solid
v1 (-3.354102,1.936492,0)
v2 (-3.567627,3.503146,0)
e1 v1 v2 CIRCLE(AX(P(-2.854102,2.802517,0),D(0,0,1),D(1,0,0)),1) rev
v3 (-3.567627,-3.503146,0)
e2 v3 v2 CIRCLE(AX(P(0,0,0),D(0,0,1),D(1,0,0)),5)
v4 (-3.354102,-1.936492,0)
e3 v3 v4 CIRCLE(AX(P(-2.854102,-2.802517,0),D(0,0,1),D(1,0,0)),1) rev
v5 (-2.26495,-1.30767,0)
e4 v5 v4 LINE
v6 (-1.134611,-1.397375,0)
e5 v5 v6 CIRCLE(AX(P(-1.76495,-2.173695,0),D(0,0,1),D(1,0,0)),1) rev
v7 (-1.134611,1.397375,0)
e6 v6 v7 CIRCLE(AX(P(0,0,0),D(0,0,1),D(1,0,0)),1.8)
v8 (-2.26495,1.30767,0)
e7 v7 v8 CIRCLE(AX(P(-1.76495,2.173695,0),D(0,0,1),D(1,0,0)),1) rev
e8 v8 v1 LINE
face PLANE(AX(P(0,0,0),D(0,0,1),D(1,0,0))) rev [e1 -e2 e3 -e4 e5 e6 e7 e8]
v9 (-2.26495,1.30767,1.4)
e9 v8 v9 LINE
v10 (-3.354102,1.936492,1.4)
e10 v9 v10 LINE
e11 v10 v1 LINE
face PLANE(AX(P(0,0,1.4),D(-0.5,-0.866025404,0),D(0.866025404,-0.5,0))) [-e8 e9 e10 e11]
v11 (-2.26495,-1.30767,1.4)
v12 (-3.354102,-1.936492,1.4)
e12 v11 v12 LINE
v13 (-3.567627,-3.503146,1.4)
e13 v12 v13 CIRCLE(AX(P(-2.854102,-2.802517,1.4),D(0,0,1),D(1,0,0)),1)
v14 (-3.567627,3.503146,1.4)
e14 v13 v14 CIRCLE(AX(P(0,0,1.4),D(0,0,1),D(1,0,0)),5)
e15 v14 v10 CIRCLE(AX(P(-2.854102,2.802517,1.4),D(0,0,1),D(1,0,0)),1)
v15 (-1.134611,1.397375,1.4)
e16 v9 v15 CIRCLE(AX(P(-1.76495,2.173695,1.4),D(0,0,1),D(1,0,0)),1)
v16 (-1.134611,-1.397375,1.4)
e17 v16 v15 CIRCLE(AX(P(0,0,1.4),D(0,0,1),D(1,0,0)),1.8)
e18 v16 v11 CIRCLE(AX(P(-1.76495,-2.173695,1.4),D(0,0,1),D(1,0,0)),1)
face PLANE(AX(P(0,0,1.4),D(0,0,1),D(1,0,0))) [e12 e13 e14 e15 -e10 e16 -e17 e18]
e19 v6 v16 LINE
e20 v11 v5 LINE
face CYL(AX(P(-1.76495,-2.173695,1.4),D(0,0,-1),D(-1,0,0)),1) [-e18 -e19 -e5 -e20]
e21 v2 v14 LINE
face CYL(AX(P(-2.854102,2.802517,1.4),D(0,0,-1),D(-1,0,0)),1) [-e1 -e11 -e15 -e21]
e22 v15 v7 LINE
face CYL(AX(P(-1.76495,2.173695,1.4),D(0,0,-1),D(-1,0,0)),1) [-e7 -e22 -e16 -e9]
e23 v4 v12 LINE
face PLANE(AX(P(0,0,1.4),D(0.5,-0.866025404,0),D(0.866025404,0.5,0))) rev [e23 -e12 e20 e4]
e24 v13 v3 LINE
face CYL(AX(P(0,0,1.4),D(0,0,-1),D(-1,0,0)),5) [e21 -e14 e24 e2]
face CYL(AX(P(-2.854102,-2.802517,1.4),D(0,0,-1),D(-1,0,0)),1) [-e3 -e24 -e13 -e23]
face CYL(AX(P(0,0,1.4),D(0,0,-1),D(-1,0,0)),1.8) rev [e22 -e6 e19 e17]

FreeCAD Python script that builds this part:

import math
import FreeCAD as App
import Part
import Sketcher
Q = App.Units.Quantity


def edges_at(feature, points):
    """Names of the edges that pass closest to the given points."""
    edges = feature.Shape.Edges
    near = lambda p: min(range(len(edges)), key=lambda i: edges[i].distToShape(Part.Vertex(*p))[0])
    return sorted({f"Edge{near(p) + 1}" for p in points})

doc = App.newDocument("Part")
body = doc.addObject("PartDesign::Body", "Body")

# Sketch on XY plane
sketch1 = body.newObject("Sketcher::SketchObject", "Sketch")
sketch1.AttachmentSupport = (doc.getObject("XY_Plane"), [""])
sketch1.MapMode = "FlatFace"
sketch1.addGeometry(Part.ArcOfCircle(Part.Circle(App.Vector(0, 0, 0), App.Vector(0, 0, 1), 1.8), math.radians(-150), math.radians(90)), False)
sketch1.addGeometry(Part.LineSegment(App.Vector(-1.558846, -0.9, 0), App.Vector(-4.330127, -2.5, 0)), False)
sketch1.addGeometry(Part.ArcOfCircle(Part.Circle(App.Vector(0, 0, 0), App.Vector(0, 0, 1), 5), math.radians(-150), math.radians(90)), False)
sketch1.addGeometry(Part.ArcOfCircle(Part.Circle(App.Vector(0, 0, 0), App.Vector(0, 0, 1), 5), math.radians(90), math.radians(150)), False)
sketch1.addGeometry(Part.LineSegment(App.Vector(-4.330127, 2.5, 0), App.Vector(-1.558846, 0.9, 0)), False)
sketch1.addGeometry(Part.ArcOfCircle(Part.Circle(App.Vector(0, 0, 0), App.Vector(0, 0, 1), 1.8), math.radians(90), math.radians(150)), False)
sketch1.addConstraint(Sketcher.Constraint("Coincident", 0, 1, 1, 1))
sketch1.addConstraint(Sketcher.Constraint("Coincident", 1, 2, 2, 1))
sketch1.addConstraint(Sketcher.Constraint("Tangent", 2, 2, 3, 1))
sketch1.addConstraint(Sketcher.Constraint("Coincident", 3, 2, 4, 1))
sketch1.addConstraint(Sketcher.Constraint("Coincident", 4, 2, 5, 2))
sketch1.addConstraint(Sketcher.Constraint("Tangent", 5, 1, 0, 2))
sketch1.addConstraint(Sketcher.Constraint("Coincident", 0, 3, -1, 1))
sketch1.addConstraint(Sketcher.Constraint("Coincident", 2, 3, -1, 1))
sketch1.addConstraint(Sketcher.Constraint("Equal", 2, 3))
sketch1.addConstraint(Sketcher.Constraint("Equal", 0, 5))
sketch1.addConstraint(Sketcher.Constraint("PointOnObject", 2, 2, -2))
sketch1.addConstraint(Sketcher.Constraint("PointOnObject", 5, 1, -2))
sketch1.addConstraint(Sketcher.Constraint("Vertical", 1, 2, 3, 2))
sketch1.addConstraint(Sketcher.Constraint("Vertical", 0, 1, 4, 2))
sketch1.addConstraint(Sketcher.Constraint("Radius", 2, Q("5 mm")))
sketch1.addConstraint(Sketcher.Constraint("Radius", 0, Q("1.8 mm")))
sketch1.addConstraint(Sketcher.Constraint("Angle", 1, Q("-150 deg")))
sketch1.addConstraint(Sketcher.Constraint("DistanceY", 1, 2, 3, 2, Q("5 mm")))
pad1 = body.newObject("PartDesign::Pad", "Pad")
pad1.Profile = sketch1
pad1.Length = 1.4
doc.recompute()

fillet = body.newObject("PartDesign::Fillet", "Fillet")
fillet.Base = (pad1, edges_at(pad1, [
    (-1.559, -0.9, 0.7),
    (-1.559, 0.9, 0.7),
    (-4.33, 2.5, 0.7),
    (-4.33, -2.5, 0.7),
]))
fillet.Radius = 1

doc.recompute()
